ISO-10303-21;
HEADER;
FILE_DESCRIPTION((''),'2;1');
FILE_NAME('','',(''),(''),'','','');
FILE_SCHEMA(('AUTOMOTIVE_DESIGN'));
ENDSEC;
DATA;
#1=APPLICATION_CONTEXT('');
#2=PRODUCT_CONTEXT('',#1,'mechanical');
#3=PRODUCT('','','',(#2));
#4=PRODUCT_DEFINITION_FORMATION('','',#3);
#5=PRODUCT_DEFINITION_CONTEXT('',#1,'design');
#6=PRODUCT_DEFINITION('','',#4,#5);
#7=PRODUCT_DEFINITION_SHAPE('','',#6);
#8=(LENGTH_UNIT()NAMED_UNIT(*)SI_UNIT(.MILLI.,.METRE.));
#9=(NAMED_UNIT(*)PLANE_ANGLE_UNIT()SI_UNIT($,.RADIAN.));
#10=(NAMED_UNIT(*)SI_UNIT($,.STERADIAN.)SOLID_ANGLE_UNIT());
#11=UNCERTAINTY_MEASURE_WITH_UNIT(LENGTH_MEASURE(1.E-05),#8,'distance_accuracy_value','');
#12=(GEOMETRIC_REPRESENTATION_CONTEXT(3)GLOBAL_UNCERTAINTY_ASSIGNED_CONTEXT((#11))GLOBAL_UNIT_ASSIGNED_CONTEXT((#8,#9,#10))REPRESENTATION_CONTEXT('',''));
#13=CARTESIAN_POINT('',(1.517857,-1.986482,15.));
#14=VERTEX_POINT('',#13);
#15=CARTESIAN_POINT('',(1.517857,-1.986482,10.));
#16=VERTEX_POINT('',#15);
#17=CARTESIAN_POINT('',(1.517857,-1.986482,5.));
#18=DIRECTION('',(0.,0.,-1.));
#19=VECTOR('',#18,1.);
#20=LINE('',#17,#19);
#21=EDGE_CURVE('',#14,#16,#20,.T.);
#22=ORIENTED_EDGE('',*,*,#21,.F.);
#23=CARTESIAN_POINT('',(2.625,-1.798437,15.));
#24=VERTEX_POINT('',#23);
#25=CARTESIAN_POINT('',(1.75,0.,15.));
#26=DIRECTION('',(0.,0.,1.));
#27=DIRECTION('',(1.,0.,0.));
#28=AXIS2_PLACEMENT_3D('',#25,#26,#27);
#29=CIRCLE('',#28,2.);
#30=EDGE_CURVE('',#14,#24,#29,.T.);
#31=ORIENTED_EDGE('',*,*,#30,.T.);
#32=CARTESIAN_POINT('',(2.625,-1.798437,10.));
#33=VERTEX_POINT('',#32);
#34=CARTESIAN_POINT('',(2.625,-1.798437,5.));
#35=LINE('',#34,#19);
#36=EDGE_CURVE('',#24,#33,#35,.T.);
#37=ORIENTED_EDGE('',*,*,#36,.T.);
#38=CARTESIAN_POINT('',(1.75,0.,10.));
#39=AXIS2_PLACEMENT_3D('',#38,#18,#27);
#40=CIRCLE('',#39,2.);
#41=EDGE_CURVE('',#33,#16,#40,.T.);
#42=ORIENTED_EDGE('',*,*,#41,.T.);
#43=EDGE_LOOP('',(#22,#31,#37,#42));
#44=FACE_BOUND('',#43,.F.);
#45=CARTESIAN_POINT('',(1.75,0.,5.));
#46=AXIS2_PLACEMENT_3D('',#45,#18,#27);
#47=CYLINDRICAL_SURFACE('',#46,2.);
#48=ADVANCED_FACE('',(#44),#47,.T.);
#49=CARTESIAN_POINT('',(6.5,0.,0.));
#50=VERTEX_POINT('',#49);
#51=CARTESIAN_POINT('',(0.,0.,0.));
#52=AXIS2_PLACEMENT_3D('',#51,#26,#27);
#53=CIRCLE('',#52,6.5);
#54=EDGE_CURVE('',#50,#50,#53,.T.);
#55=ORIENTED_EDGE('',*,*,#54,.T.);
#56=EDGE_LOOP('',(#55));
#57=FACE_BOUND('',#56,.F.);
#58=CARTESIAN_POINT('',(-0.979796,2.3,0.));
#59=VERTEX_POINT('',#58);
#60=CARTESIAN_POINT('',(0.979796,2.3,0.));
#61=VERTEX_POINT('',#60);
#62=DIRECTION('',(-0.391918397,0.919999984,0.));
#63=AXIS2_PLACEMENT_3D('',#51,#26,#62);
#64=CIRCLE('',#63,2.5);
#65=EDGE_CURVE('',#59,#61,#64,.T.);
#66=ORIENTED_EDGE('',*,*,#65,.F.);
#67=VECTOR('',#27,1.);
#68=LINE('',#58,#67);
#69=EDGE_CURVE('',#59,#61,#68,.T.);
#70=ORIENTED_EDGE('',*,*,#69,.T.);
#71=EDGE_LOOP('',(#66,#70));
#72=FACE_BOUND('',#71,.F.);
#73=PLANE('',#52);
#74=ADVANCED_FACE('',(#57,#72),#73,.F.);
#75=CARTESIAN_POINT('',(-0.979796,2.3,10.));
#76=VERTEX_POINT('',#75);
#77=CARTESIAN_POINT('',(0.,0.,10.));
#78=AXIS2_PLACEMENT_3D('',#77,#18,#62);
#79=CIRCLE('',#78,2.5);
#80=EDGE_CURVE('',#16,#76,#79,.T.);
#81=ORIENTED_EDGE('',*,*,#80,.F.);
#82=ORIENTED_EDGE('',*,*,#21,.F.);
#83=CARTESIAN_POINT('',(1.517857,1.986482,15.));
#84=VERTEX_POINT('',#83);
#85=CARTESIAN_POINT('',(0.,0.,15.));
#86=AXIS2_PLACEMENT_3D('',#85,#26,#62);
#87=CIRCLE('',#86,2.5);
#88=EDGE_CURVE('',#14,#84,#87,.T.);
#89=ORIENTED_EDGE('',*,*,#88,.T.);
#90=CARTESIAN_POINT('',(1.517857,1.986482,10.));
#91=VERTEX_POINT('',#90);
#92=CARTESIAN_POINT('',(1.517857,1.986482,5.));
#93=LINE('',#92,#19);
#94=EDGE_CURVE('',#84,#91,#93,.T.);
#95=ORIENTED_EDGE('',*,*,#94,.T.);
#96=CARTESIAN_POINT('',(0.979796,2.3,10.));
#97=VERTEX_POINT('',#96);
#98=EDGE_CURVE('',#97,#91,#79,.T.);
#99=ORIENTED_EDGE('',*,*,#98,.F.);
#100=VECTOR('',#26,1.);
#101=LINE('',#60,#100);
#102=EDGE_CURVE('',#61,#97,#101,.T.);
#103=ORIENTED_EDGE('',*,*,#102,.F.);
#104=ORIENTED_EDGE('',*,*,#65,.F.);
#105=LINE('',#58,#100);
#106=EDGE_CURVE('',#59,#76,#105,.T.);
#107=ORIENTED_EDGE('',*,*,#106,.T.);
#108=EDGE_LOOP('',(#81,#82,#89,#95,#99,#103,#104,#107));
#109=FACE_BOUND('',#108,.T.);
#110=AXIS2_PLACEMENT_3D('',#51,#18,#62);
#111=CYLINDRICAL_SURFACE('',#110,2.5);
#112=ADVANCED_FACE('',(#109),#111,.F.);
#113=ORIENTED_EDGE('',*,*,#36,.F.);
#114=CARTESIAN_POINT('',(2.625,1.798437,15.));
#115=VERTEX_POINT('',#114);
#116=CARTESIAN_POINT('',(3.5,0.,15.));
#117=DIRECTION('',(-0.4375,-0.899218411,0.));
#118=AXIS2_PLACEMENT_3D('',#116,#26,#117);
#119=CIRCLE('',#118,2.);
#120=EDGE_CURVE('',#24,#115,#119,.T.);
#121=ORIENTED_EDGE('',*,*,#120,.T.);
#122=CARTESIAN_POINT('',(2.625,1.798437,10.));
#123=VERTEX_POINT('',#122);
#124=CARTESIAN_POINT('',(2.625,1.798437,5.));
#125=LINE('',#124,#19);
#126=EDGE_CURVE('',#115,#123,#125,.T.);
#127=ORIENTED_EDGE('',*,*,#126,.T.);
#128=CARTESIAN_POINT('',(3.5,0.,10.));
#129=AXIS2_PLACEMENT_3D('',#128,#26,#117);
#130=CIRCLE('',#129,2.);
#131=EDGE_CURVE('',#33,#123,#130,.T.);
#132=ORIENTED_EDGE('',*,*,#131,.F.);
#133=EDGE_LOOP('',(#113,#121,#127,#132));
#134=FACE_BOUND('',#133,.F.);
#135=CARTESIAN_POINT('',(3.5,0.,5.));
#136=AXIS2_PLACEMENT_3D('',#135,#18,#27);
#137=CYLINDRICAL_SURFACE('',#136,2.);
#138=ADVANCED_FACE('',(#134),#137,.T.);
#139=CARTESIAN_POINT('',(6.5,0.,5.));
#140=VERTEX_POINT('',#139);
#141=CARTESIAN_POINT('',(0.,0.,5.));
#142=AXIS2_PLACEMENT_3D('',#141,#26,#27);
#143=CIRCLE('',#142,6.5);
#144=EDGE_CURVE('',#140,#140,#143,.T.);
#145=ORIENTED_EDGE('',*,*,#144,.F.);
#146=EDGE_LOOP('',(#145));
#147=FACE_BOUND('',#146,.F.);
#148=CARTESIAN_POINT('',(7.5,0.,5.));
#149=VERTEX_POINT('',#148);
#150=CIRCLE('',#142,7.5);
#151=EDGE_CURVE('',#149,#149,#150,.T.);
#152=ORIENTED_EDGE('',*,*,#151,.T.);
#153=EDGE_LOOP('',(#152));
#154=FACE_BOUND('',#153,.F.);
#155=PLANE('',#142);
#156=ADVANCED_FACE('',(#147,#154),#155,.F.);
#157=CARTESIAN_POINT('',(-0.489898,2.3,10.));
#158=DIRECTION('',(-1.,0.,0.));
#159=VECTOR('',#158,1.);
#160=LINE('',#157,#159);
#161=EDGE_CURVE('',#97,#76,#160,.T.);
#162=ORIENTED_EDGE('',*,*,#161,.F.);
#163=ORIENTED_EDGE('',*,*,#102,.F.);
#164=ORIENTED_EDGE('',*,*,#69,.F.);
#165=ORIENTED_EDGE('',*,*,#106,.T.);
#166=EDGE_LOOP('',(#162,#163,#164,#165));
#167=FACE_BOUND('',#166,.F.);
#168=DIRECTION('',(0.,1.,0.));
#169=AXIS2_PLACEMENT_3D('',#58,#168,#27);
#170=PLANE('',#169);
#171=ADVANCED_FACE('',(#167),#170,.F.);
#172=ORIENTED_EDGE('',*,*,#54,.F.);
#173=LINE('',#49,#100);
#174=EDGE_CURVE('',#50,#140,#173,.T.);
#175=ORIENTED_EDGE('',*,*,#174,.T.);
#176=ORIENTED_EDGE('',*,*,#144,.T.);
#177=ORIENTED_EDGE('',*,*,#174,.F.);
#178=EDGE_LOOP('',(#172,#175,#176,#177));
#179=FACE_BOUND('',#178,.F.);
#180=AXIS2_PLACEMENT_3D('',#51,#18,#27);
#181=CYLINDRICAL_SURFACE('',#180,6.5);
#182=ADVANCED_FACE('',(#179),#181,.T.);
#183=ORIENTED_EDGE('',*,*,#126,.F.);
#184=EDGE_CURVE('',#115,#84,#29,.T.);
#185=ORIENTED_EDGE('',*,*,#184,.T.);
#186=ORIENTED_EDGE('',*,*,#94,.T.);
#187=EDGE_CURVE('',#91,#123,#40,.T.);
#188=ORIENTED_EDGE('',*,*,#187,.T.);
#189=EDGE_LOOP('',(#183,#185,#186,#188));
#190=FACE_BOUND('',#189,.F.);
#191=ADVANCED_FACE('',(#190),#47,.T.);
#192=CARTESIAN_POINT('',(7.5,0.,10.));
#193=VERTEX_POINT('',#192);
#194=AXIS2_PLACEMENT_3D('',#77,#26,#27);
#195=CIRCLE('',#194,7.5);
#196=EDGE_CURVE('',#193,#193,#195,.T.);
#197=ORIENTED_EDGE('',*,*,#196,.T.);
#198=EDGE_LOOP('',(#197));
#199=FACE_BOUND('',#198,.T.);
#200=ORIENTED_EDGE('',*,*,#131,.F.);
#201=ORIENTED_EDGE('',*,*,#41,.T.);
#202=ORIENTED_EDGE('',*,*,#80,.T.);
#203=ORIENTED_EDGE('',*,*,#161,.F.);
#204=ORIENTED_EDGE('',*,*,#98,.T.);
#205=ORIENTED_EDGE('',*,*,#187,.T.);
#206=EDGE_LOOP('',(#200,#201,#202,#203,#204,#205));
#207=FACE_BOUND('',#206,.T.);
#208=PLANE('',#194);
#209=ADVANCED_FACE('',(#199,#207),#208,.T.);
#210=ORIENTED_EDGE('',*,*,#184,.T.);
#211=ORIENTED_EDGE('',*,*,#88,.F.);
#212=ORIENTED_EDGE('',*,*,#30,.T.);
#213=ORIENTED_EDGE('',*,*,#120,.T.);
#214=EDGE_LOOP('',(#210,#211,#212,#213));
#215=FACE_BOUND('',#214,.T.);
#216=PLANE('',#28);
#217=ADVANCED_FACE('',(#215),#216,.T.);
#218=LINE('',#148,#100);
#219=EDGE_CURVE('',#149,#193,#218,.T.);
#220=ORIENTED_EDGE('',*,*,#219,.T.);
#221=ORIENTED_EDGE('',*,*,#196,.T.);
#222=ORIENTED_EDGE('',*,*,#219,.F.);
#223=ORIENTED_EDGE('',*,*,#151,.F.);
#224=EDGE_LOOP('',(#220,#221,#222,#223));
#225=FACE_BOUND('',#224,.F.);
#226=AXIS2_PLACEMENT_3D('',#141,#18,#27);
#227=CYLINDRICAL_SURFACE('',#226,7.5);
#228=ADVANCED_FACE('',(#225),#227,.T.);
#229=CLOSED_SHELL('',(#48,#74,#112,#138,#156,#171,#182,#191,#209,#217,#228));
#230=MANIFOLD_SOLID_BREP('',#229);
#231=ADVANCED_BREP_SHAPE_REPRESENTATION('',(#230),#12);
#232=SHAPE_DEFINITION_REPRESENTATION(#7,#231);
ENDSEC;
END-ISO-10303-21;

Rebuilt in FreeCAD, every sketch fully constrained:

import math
import FreeCAD as App
import Part
import Sketcher
from FreeCAD import Vector

doc = App.newDocument("Part")
body = doc.addObject("PartDesign::Body", "Body")

sketch1 = body.newObject("Sketcher::SketchObject", "Sketch")
sketch1.AttachmentSupport = (doc.getObject("XY_Plane"), [""])
sketch1.MapMode = "FlatFace"
sketch1.addGeometry(Part.Circle(Vector(0, 0, 0), Vector(0, 0, 1), 6), False)
sketch1.addConstraint([
    Sketcher.Constraint("Coincident", 0, 3, -1, 1),
    Sketcher.Constraint("Diameter", 0, 13.0),
])
pad1 = body.newObject("PartDesign::Pad", "Pad")
pad1.Profile = sketch1
pad1.Length = 5

sketch2 = body.newObject("Sketcher::SketchObject", "Sketch001")
sketch2.AttachmentSupport = (doc.getObject("XY_Plane"), [""])
sketch2.MapMode = "FlatFace"
sketch2.AttachmentOffset = App.Placement(Vector(0, 0, 5), App.Rotation())
sketch2.addGeometry(Part.Circle(Vector(0, 0, 0), Vector(0, 0, 1), 8), False)
sketch2.addConstraint([
    Sketcher.Constraint("Coincident", 0, 3, -1, 1),
    Sketcher.Constraint("Diameter", 0, 15.0),
])
pad2 = body.newObject("PartDesign::Pad", "Pad001")
pad2.Profile = sketch2
pad2.Length = 5

sketch3 = body.newObject("Sketcher::SketchObject", "Sketch002")
sketch3.AttachmentSupport = (doc.getObject("XY_Plane"), [""])
sketch3.MapMode = "FlatFace"
sketch3.AttachmentOffset = App.Placement(Vector(0, 0, 5), App.Rotation())
sketch3.addGeometry(Part.Circle(Vector(1.8, 0, 0), Vector(0, 0, 1), 2), False)
sketch3.addConstraint([
    Sketcher.Constraint("PointOnObject", 0, 3, -1),
    Sketcher.Constraint("Diameter", 0, 4.0),
    Sketcher.Constraint("DistanceX", -1, 1, 0, 3, 1.75),
])
pad3 = body.newObject("PartDesign::Pad", "Pad002")
pad3.Profile = sketch3
pad3.Length = 10

sketch4 = body.newObject("Sketcher::SketchObject", "Sketch003")
sketch4.AttachmentSupport = (doc.getObject("XY_Plane"), [""])
sketch4.MapMode = "FlatFace"
sketch4.AttachmentOffset = App.Placement(Vector(0, 0, 5), App.Rotation())
sketch4.addGeometry(Part.Circle(Vector(3.5, 0, 0), Vector(0, 0, 1), 2), False)
sketch4.addConstraint([
    Sketcher.Constraint("PointOnObject", 0, 3, -1),
    Sketcher.Constraint("Diameter", 0, 4.0),
    Sketcher.Constraint("DistanceX", -1, 1, 0, 3, 3.5),
])
pad4 = body.newObject("PartDesign::Pad", "Pad003")
pad4.Profile = sketch4
pad4.Length = 10

sketch5 = body.newObject("Sketcher::SketchObject", "Sketch004")
sketch5.AttachmentSupport = (doc.getObject("XY_Plane"), [""])
sketch5.MapMode = "FlatFace"
sketch5.addGeometry([
    Part.ArcOfCircle(Part.Circle(Vector(0, 0, 0), Vector(0, 0, 1), 2.5), math.radians(113), math.radians(427)),
    Part.LineSegment(Vector(1, 2.3, 0), Vector(-1, 2.3, 0)),
], False)
sketch5.addConstraint([
    Sketcher.Constraint("Coincident", 0, 1, 1, 2),
    Sketcher.Constraint("Coincident", 1, 1, 0, 2),
    Sketcher.Constraint("Horizontal", 1),
    Sketcher.Constraint("Coincident", 0, 3, -1, 1),
    Sketcher.Constraint("Radius", 0, 2.5),
    Sketcher.Constraint("DistanceY", -1, 1, 0, 1, 2.3),
])
pocket1 = body.newObject("PartDesign::Pocket", "Pocket")
pocket1.Profile = sketch5
pocket1.Length = 15
pocket1.Reversed = True

doc.recompute()
